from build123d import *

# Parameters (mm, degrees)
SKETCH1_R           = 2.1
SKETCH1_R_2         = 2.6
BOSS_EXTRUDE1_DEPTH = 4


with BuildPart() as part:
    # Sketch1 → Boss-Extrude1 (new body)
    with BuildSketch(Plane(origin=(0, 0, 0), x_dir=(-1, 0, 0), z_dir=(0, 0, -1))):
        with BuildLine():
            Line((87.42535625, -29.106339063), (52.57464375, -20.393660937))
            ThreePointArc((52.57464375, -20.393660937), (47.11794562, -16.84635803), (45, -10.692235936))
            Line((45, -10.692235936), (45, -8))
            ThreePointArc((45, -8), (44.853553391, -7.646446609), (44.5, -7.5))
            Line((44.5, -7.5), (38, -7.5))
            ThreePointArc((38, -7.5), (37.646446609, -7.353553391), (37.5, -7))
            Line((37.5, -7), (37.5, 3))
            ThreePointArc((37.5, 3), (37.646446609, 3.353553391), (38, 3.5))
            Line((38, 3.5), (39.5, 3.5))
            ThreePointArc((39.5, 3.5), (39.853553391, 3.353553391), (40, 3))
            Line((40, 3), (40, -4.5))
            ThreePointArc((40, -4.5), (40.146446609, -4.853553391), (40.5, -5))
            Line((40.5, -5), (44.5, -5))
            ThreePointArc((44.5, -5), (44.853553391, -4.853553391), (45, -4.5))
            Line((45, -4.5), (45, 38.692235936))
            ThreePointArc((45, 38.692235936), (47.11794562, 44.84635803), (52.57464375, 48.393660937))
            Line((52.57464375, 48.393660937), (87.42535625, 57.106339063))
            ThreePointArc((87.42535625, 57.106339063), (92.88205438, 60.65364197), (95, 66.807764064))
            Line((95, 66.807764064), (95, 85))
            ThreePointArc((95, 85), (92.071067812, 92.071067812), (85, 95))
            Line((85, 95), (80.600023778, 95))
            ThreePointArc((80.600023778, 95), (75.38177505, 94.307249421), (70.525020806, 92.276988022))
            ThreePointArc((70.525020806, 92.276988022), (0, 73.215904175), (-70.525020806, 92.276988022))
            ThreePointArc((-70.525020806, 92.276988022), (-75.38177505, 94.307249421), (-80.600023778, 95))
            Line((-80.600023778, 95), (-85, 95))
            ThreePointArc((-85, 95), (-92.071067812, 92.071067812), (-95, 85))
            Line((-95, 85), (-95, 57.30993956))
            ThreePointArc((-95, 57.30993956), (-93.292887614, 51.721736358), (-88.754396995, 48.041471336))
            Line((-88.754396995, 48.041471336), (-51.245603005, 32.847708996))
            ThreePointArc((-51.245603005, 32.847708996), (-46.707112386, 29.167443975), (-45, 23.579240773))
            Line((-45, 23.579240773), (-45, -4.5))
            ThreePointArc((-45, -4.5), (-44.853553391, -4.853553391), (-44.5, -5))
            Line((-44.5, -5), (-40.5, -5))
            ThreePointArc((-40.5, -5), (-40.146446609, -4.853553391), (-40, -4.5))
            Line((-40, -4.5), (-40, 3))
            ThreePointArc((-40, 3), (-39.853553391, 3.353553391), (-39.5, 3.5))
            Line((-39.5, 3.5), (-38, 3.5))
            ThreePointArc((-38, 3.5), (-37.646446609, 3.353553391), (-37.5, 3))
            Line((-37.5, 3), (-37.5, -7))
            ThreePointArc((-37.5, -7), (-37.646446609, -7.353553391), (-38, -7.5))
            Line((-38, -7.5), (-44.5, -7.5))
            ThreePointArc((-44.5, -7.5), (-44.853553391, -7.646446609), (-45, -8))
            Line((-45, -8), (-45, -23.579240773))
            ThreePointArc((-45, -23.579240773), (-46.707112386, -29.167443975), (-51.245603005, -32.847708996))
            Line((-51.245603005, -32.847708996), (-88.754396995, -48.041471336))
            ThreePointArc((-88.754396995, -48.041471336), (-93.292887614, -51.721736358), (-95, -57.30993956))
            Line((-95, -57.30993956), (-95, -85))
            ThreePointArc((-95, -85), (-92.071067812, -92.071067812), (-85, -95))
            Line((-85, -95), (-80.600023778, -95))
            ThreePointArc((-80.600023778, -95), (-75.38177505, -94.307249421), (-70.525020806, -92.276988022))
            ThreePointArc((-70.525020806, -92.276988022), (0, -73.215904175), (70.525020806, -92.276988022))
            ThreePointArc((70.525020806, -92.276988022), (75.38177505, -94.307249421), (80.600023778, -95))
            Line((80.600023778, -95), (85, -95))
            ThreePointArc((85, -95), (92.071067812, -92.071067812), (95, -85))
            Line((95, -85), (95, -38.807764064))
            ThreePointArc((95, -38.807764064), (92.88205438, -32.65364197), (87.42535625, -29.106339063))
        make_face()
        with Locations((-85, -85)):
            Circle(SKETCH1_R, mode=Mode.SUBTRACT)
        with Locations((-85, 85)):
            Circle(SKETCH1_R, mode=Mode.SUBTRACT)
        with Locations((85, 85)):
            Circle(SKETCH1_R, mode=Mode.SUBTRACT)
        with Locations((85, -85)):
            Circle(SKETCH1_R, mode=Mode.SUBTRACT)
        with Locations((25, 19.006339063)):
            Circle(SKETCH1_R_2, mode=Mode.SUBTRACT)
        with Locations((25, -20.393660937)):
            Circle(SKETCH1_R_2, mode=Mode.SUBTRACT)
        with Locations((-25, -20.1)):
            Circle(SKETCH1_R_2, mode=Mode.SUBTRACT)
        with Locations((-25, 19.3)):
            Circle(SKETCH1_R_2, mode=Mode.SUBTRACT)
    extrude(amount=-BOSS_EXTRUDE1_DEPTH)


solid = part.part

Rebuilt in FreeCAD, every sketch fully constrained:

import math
import FreeCAD as App
import Part
import Sketcher

V = App.Vector

doc = App.newDocument("Part")
body = doc.addObject("PartDesign::Body", "Body")

# Sketch on XY plane
sketch1 = body.newObject("Sketcher::SketchObject", "Sketch")
sketch1.AttachmentSupport = (doc.getObject("XY_Plane"), [""])
sketch1.MapMode = "FlatFace"
sketch1.addGeometry(Part.LineSegment(V(-87.43, -29.11, 0), V(-52.57, -20.39, 0)), False)
sketch1.addGeometry(Part.ArcOfCircle(Part.Circle(V(-55, -10.69, 0), V(0, 0, 1), 10), math.radians(-76), math.radians(0)), False)
sketch1.addGeometry(Part.LineSegment(V(-45, -10.69, 0), V(-45, -8, 0)), False)
sketch1.addGeometry(Part.ArcOfCircle(Part.Circle(V(-44.5, -8, 0), V(0, 0, 1), 0.5), math.radians(90), math.radians(180)), False)
sketch1.addGeometry(Part.LineSegment(V(-44.5, -7.5, 0), V(-38, -7.5, 0)), False)
sketch1.addGeometry(Part.ArcOfCircle(Part.Circle(V(-38, -7, 0), V(0, 0, 1), 0.5), math.radians(-90), math.radians(0)), False)
sketch1.addGeometry(Part.LineSegment(V(-37.5, -7, 0), V(-37.5, 3, 0)), False)
sketch1.addGeometry(Part.ArcOfCircle(Part.Circle(V(-38, 3, 0), V(0, 0, 1), 0.5), math.radians(0), math.radians(90)), False)
sketch1.addGeometry(Part.LineSegment(V(-38, 3.5, 0), V(-39.5, 3.5, 0)), False)
sketch1.addGeometry(Part.ArcOfCircle(Part.Circle(V(-39.5, 3, 0), V(0, 0, 1), 0.5), math.radians(90), math.radians(180)), False)
sketch1.addGeometry(Part.LineSegment(V(-40, 3, 0), V(-40, -4.5, 0)), False)
sketch1.addGeometry(Part.ArcOfCircle(Part.Circle(V(-40.5, -4.5, 0), V(0, 0, 1), 0.5), math.radians(-90), math.radians(0)), False)
sketch1.addGeometry(Part.LineSegment(V(-40.5, -5, 0), V(-44.5, -5, 0)), False)
sketch1.addGeometry(Part.ArcOfCircle(Part.Circle(V(-44.5, -4.5, 0), V(0, 0, 1), 0.5), math.radians(180), math.radians(270)), False)
sketch1.addGeometry(Part.LineSegment(V(-45, -4.5, 0), V(-45, 38.69, 0)), False)
sketch1.addGeometry(Part.ArcOfCircle(Part.Circle(V(-55, 38.69, 0), V(0, 0, 1), 10), math.radians(0), math.radians(76)), False)
sketch1.addGeometry(Part.LineSegment(V(-52.57, 48.39, 0), V(-87.43, 57.11, 0)), False)
sketch1.addGeometry(Part.ArcOfCircle(Part.Circle(V(-85, 66.81, 0), V(0, 0, 1), 10), math.radians(180), math.radians(256)), False)
sketch1.addGeometry(Part.LineSegment(V(-95, 66.81, 0), V(-95, 85, 0)), False)
sketch1.addGeometry(Part.ArcOfCircle(Part.Circle(V(-85, 85, 0), V(0, 0, 1), 10), math.radians(90), math.radians(180)), False)
sketch1.addGeometry(Part.LineSegment(V(-85, 95, 0), V(-80.6, 95, 0)), False)
sketch1.addGeometry(Part.ArcOfCircle(Part.Circle(V(-80.6, 75, 0), V(0, 0, 1), 20), math.radians(60), math.radians(90)), False)
sketch1.addGeometry(Part.ArcOfCircle(Part.Circle(V(0, 213.22, 0), V(0, 0, 1), 140), math.radians(-120), math.radians(-60)), False)
sketch1.addGeometry(Part.ArcOfCircle(Part.Circle(V(80.6, 75, 0), V(0, 0, 1), 20), math.radians(90), math.radians(120)), False)
sketch1.addGeometry(Part.LineSegment(V(80.6, 95, 0), V(85, 95, 0)), False)
sketch1.addGeometry(Part.ArcOfCircle(Part.Circle(V(85, 85, 0), V(0, 0, 1), 10), math.radians(0), math.radians(90)), False)
sketch1.addGeometry(Part.LineSegment(V(95, 85, 0), V(95, 57.31, 0)), False)
sketch1.addGeometry(Part.ArcOfCircle(Part.Circle(V(85, 57.31, 0), V(0, 0, 1), 10), math.radians(-68), math.radians(0)), False)
sketch1.addGeometry(Part.LineSegment(V(88.75, 48.04, 0), V(51.25, 32.85, 0)), False)
sketch1.addGeometry(Part.ArcOfCircle(Part.Circle(V(55, 23.58, 0), V(0, 0, 1), 10), math.radians(112), math.radians(180)), False)
sketch1.addGeometry(Part.LineSegment(V(45, 23.58, 0), V(45, -4.5, 0)), False)
sketch1.addGeometry(Part.ArcOfCircle(Part.Circle(V(44.5, -4.5, 0), V(0, 0, 1), 0.5), math.radians(-90), math.radians(0)), False)
sketch1.addGeometry(Part.LineSegment(V(44.5, -5, 0), V(40.5, -5, 0)), False)
sketch1.addGeometry(Part.ArcOfCircle(Part.Circle(V(40.5, -4.5, 0), V(0, 0, 1), 0.5), math.radians(180), math.radians(270)), False)
sketch1.addGeometry(Part.LineSegment(V(40, -4.5, 0), V(40, 3, 0)), False)
sketch1.addGeometry(Part.ArcOfCircle(Part.Circle(V(39.5, 3, 0), V(0, 0, 1), 0.5), math.radians(0), math.radians(90)), False)
sketch1.addGeometry(Part.LineSegment(V(39.5, 3.5, 0), V(38, 3.5, 0)), False)
sketch1.addGeometry(Part.ArcOfCircle(Part.Circle(V(38, 3, 0), V(0, 0, 1), 0.5), math.radians(90), math.radians(180)), False)
sketch1.addGeometry(Part.LineSegment(V(37.5, 3, 0), V(37.5, -7, 0)), False)
sketch1.addGeometry(Part.ArcOfCircle(Part.Circle(V(38, -7, 0), V(0, 0, 1), 0.5), math.radians(180), math.radians(270)), False)
sketch1.addGeometry(Part.LineSegment(V(38, -7.5, 0), V(44.5, -7.5, 0)), False)
sketch1.addGeometry(Part.ArcOfCircle(Part.Circle(V(44.5, -8, 0), V(0, 0, 1), 0.5), math.radians(0), math.radians(90)), False)
sketch1.addGeometry(Part.LineSegment(V(45, -8, 0), V(45, -23.58, 0)), False)
sketch1.addGeometry(Part.ArcOfCircle(Part.Circle(V(55, -23.58, 0), V(0, 0, 1), 10), math.radians(180), math.radians(248)), False)
sketch1.addGeometry(Part.LineSegment(V(51.25, -32.85, 0), V(88.75, -48.04, 0)), False)
sketch1.addGeometry(Part.ArcOfCircle(Part.Circle(V(85, -57.31, 0), V(0, 0, 1), 10), math.radians(0), math.radians(68)), False)
sketch1.addGeometry(Part.LineSegment(V(95, -57.31, 0), V(95, -85, 0)), False)
sketch1.addGeometry(Part.ArcOfCircle(Part.Circle(V(85, -85, 0), V(0, 0, 1), 10), math.radians(-90), math.radians(0)), False)
sketch1.addGeometry(Part.LineSegment(V(85, -95, 0), V(80.6, -95, 0)), False)
sketch1.addGeometry(Part.ArcOfCircle(Part.Circle(V(80.6, -75, 0), V(0, 0, 1), 20), math.radians(-120), math.radians(-90)), False)
sketch1.addGeometry(Part.ArcOfCircle(Part.Circle(V(0, -213.22, 0), V(0, 0, 1), 140), math.radians(60), math.radians(120)), False)
sketch1.addGeometry(Part.ArcOfCircle(Part.Circle(V(-80.6, -75, 0), V(0, 0, 1), 20), math.radians(-90), math.radians(-60)), False)
sketch1.addGeometry(Part.LineSegment(V(-80.6, -95, 0), V(-85, -95, 0)), False)
sketch1.addGeometry(Part.ArcOfCircle(Part.Circle(V(-85, -85, 0), V(0, 0, 1), 10), math.radians(180), math.radians(270)), False)
sketch1.addGeometry(Part.LineSegment(V(-95, -85, 0), V(-95, -38.81, 0)), False)
sketch1.addGeometry(Part.ArcOfCircle(Part.Circle(V(-85, -38.81, 0), V(0, 0, 1), 10), math.radians(104), math.radians(180)), False)
sketch1.addGeometry(Part.Circle(V(85, -85, 0), V(0, 0, 1), 2.1), False)
sketch1.addGeometry(Part.Circle(V(25, -20.1, 0), V(0, 0, 1), 2.6), False)
sketch1.addGeometry(Part.Circle(V(-85, -85, 0), V(0, 0, 1), 2.1), False)
sketch1.addGeometry(Part.Circle(V(-25, -20.39, 0), V(0, 0, 1), 2.6), False)
sketch1.addGeometry(Part.Circle(V(25, 19.3, 0), V(0, 0, 1), 2.6), False)
sketch1.addGeometry(Part.Circle(V(85, 85, 0), V(0, 0, 1), 2.1), False)
sketch1.addGeometry(Part.Circle(V(-25, 19.01, 0), V(0, 0, 1), 2.6), False)
sketch1.addGeometry(Part.Circle(V(-85, 85, 0), V(0, 0, 1), 2.1), False)
sketch1.addConstraint(Sketcher.Constraint("Tangent", 0, 2, 1, 1))
sketch1.addConstraint(Sketcher.Constraint("Tangent", 1, 2, 2, 1))
sketch1.addConstraint(Sketcher.Constraint("Tangent", 2, 2, 3, 2))
sketch1.addConstraint(Sketcher.Constraint("Tangent", 3, 1, 4, 1))
sketch1.addConstraint(Sketcher.Constraint("Tangent", 4, 2, 5, 1))
sketch1.addConstraint(Sketcher.Constraint("Tangent", 5, 2, 6, 1))
sketch1.addConstraint(Sketcher.Constraint("Tangent", 6, 2, 7, 1))
sketch1.addConstraint(Sketcher.Constraint("Tangent", 7, 2, 8, 1))
sketch1.addConstraint(Sketcher.Constraint("Tangent", 8, 2, 9, 1))
sketch1.addConstraint(Sketcher.Constraint("Tangent", 9, 2, 10, 1))
sketch1.addConstraint(Sketcher.Constraint("Tangent", 10, 2, 11, 2))
sketch1.addConstraint(Sketcher.Constraint("Tangent", 11, 1, 12, 1))
sketch1.addConstraint(Sketcher.Constraint("Tangent", 12, 2, 13, 2))
sketch1.addConstraint(Sketcher.Constraint("Tangent", 13, 1, 14, 1))
sketch1.addConstraint(Sketcher.Constraint("Tangent", 14, 2, 15, 1))
sketch1.addConstraint(Sketcher.Constraint("Tangent", 15, 2, 16, 1))
sketch1.addConstraint(Sketcher.Constraint("Tangent", 16, 2, 17, 2))
sketch1.addConstraint(Sketcher.Constraint("Tangent", 17, 1, 18, 1))
sketch1.addConstraint(Sketcher.Constraint("Tangent", 18, 2, 19, 2))
sketch1.addConstraint(Sketcher.Constraint("Tangent", 19, 1, 20, 1))
sketch1.addConstraint(Sketcher.Constraint("Tangent", 20, 2, 21, 2))
sketch1.addConstraint(Sketcher.Constraint("Tangent", 21, 1, 22, 1))
sketch1.addConstraint(Sketcher.Constraint("Tangent", 22, 2, 23, 2))
sketch1.addConstraint(Sketcher.Constraint("Tangent", 23, 1, 24, 1))
sketch1.addConstraint(Sketcher.Constraint("Tangent", 24, 2, 25, 2))
sketch1.addConstraint(Sketcher.Constraint("Tangent", 25, 1, 26, 1))
sketch1.addConstraint(Sketcher.Constraint("Tangent", 26, 2, 27, 2))
sketch1.addConstraint(Sketcher.Constraint("Tangent", 27, 1, 28, 1))
sketch1.addConstraint(Sketcher.Constraint("Tangent", 28, 2, 29, 1))
sketch1.addConstraint(Sketcher.Constraint("Tangent", 29, 2, 30, 1))
sketch1.addConstraint(Sketcher.Constraint("Tangent", 30, 2, 31, 2))
sketch1.addConstraint(Sketcher.Constraint("Tangent", 31, 1, 32, 1))
sketch1.addConstraint(Sketcher.Constraint("Tangent", 32, 2, 33, 2))
sketch1.addConstraint(Sketcher.Constraint("Tangent", 33, 1, 34, 1))
sketch1.addConstraint(Sketcher.Constraint("Tangent", 34, 2, 35, 1))
sketch1.addConstraint(Sketcher.Constraint("Tangent", 35, 2, 36, 1))
sketch1.addConstraint(Sketcher.Constraint("Tangent", 36, 2, 37, 1))
sketch1.addConstraint(Sketcher.Constraint("Tangent", 37, 2, 38, 1))
sketch1.addConstraint(Sketcher.Constraint("Tangent", 38, 2, 39, 1))
sketch1.addConstraint(Sketcher.Constraint("Tangent", 39, 2, 40, 1))
sketch1.addConstraint(Sketcher.Constraint("Tangent", 40, 2, 41, 2))
sketch1.addConstraint(Sketcher.Constraint("Tangent", 41, 1, 42, 1))
sketch1.addConstraint(Sketcher.Constraint("Tangent", 42, 2, 43, 1))
sketch1.addConstraint(Sketcher.Constraint("Tangent", 43, 2, 44, 1))
sketch1.addConstraint(Sketcher.Constraint("Tangent", 44, 2, 45, 2))
sketch1.addConstraint(Sketcher.Constraint("Tangent", 45, 1, 46, 1))
sketch1.addConstraint(Sketcher.Constraint("Tangent", 46, 2, 47, 2))
sketch1.addConstraint(Sketcher.Constraint("Tangent", 47, 1, 48, 1))
sketch1.addConstraint(Sketcher.Constraint("Tangent", 48, 2, 49, 2))
sketch1.addConstraint(Sketcher.Constraint("Tangent", 49, 1, 50, 1))
sketch1.addConstraint(Sketcher.Constraint("Tangent", 50, 2, 51, 2))
sketch1.addConstraint(Sketcher.Constraint("Tangent", 51, 1, 52, 1))
sketch1.addConstraint(Sketcher.Constraint("Tangent", 52, 2, 53, 2))
sketch1.addConstraint(Sketcher.Constraint("Tangent", 53, 1, 54, 1))
sketch1.addConstraint(Sketcher.Constraint("Tangent", 54, 2, 55, 2))
sketch1.addConstraint(Sketcher.Constraint("Tangent", 55, 1, 0, 1))
sketch1.addConstraint(Sketcher.Constraint("Vertical", 2))
sketch1.addConstraint(Sketcher.Constraint("Horizontal", 4))
sketch1.addConstraint(Sketcher.Constraint("Vertical", 6))
sketch1.addConstraint(Sketcher.Constraint("Horizontal", 8))
sketch1.addConstraint(Sketcher.Constraint("Vertical", 10))
sketch1.addConstraint(Sketcher.Constraint("Horizontal", 12))
sketch1.addConstraint(Sketcher.Constraint("Vertical", 14))
sketch1.addConstraint(Sketcher.Constraint("Vertical", 18))
sketch1.addConstraint(Sketcher.Constraint("Horizontal", 20))
sketch1.addConstraint(Sketcher.Constraint("Horizontal", 24))
sketch1.addConstraint(Sketcher.Constraint("Vertical", 26))
sketch1.addConstraint(Sketcher.Constraint("Vertical", 30))
sketch1.addConstraint(Sketcher.Constraint("Horizontal", 32))
sketch1.addConstraint(Sketcher.Constraint("Vertical", 34))
sketch1.addConstraint(Sketcher.Constraint("Horizontal", 36))
sketch1.addConstraint(Sketcher.Constraint("Vertical", 38))
sketch1.addConstraint(Sketcher.Constraint("Horizontal", 40))
sketch1.addConstraint(Sketcher.Constraint("Vertical", 42))
sketch1.addConstraint(Sketcher.Constraint("Vertical", 46))
sketch1.addConstraint(Sketcher.Constraint("Horizontal", 48))
sketch1.addConstraint(Sketcher.Constraint("Horizontal", 52))
sketch1.addConstraint(Sketcher.Constraint("Vertical", 54))
sketch1.addConstraint(Sketcher.Constraint("Coincident", 56, 3, 47, 3))
sketch1.addConstraint(Sketcher.Constraint("Coincident", 58, 3, 53, 3))
sketch1.addConstraint(Sketcher.Constraint("Coincident", 61, 3, 25, 3))
sketch1.addConstraint(Sketcher.Constraint("Coincident", 63, 3, 19, 3))
sketch1.addConstraint(Sketcher.Constraint("Equal", 3, 5))
sketch1.addConstraint(Sketcher.Constraint("Equal", 5, 7))
sketch1.addConstraint(Sketcher.Constraint("Equal", 7, 9))
sketch1.addConstraint(Sketcher.Constraint("Equal", 9, 11))
sketch1.addConstraint(Sketcher.Constraint("Equal", 11, 13))
sketch1.addConstraint(Sketcher.Constraint("Equal", 1, 15))
sketch1.addConstraint(Sketcher.Constraint("Equal", 15, 17))
sketch1.addConstraint(Sketcher.Constraint("Equal", 17, 19))
sketch1.addConstraint(Sketcher.Constraint("Equal", 21, 23))
sketch1.addConstraint(Sketcher.Constraint("Equal", 19, 25))
sketch1.addConstraint(Sketcher.Constraint("Equal", 25, 27))
sketch1.addConstraint(Sketcher.Constraint("Equal", 27, 29))
sketch1.addConstraint(Sketcher.Constraint("Equal", 13, 31))
sketch1.addConstraint(Sketcher.Constraint("Equal", 31, 33))
sketch1.addConstraint(Sketcher.Constraint("Equal", 33, 35))
sketch1.addConstraint(Sketcher.Constraint("Equal", 35, 37))
sketch1.addConstraint(Sketcher.Constraint("Equal", 37, 39))
sketch1.addConstraint(Sketcher.Constraint("Equal", 39, 41))
sketch1.addConstraint(Sketcher.Constraint("Equal", 29, 43))
sketch1.addConstraint(Sketcher.Constraint("Equal", 43, 45))
sketch1.addConstraint(Sketcher.Constraint("Equal", 45, 47))
sketch1.addConstraint(Sketcher.Constraint("Equal", 23, 49))
sketch1.addConstraint(Sketcher.Constraint("Equal", 22, 50))
sketch1.addConstraint(Sketcher.Constraint("Equal", 49, 51))
sketch1.addConstraint(Sketcher.Constraint("Equal", 47, 53))
sketch1.addConstraint(Sketcher.Constraint("Equal", 53, 55))
sketch1.addConstraint(Sketcher.Constraint("Equal", 56, 58))
sketch1.addConstraint(Sketcher.Constraint("Equal", 57, 59))
sketch1.addConstraint(Sketcher.Constraint("Equal", 59, 60))
sketch1.addConstraint(Sketcher.Constraint("Equal", 58, 61))
sketch1.addConstraint(Sketcher.Constraint("Equal", 60, 62))
sketch1.addConstraint(Sketcher.Constraint("Equal", 61, 63))
sketch1.addConstraint(Sketcher.Constraint("Symmetric", 19, 3, 47, 3, -1, 1))
sketch1.addConstraint(Sketcher.Constraint("Symmetric", 22, 3, 50, 3, -1, 1))
sketch1.addConstraint(Sketcher.Constraint("Symmetric", 25, 3, 53, 3, -1, 1))
sketch1.addConstraint(Sketcher.Constraint("Symmetric", 21, 3, 23, 3, -2))
sketch1.addConstraint(Sketcher.Constraint("Symmetric", 13, 3, 31, 3, -2))
sketch1.addConstraint(Sketcher.Constraint("Symmetric", 9, 3, 35, 3, -2))
sketch1.addConstraint(Sketcher.Constraint("Symmetric", 5, 3, 39, 3, -2))
sketch1.addConstraint(Sketcher.Constraint("Symmetric", 29, 3, 43, 3, -1))
sketch1.addConstraint(Sketcher.Constraint("Symmetric", 27, 3, 45, 3, -1))
sketch1.addConstraint(Sketcher.Constraint("Horizontal", 59, 3, 0, 2))
sketch1.addConstraint(Sketcher.Constraint("Vertical", 3, 3, 13, 3))
sketch1.addConstraint(Sketcher.Constraint("Vertical", 57, 3, 60, 3))
sketch1.addConstraint(Sketcher.Constraint("Vertical", 59, 3, 62, 3))
sketch1.addConstraint(Sketcher.Constraint("Vertical", 0, 2, 15, 2))
sketch1.addConstraint(Sketcher.Constraint("Radius", 1, 10.0))
sketch1.addConstraint(Sketcher.Constraint("Radius", 21, 20.0))
sketch1.addConstraint(Sketcher.Constraint("Radius", 22, 140.0))
sketch1.addConstraint(Sketcher.Constraint("Diameter", 56, 4.2))
sketch1.addConstraint(Sketcher.Constraint("Diameter", 57, 5.2))
sketch1.addConstraint(Sketcher.Constraint("Radius", 3, 0.5))
sketch1.addConstraint(Sketcher.Constraint("DistanceX", 12, 2, 12, 1, 4.0))
sketch1.addConstraint(Sketcher.Constraint("DistanceY", 6, 1, 6, 2, 10.0))
sketch1.addConstraint(Sketcher.Constraint("DistanceX", 4, 1, 4, 2, 6.5))
sketch1.addConstraint(Sketcher.Constraint("DistanceY", 10, 2, 10, 1, 7.5))
sketch1.addConstraint(Sketcher.Constraint("DistanceX", 1, 3, -1, 1, 55.0))
sketch1.addConstraint(Sketcher.Constraint("DistanceY", 3, 3, -1, 1, 8.0))
sketch1.addConstraint(Sketcher.Constraint("DistanceX", 17, 3, -1, 1, 85.0))
sketch1.addConstraint(Sketcher.Constraint("DistanceY", -1, 1, 19, 3, 85.0))
sketch1.addConstraint(Sketcher.Constraint("DistanceX", -1, 1, 57, 3, 25.0))
sketch1.addConstraint(Sketcher.Constraint("DistanceX", 59, 3, -1, 1, 25.0))
sketch1.addConstraint(Sketcher.Constraint("DistanceY", 57, 3, -1, 1, 20.1))
sketch1.addConstraint(Sketcher.Constraint("DistanceY", -1, 1, 60, 3, 19.3))
sketch1.addConstraint(Sketcher.Constraint("DistanceY", 26, 2, 26, 1, 27.69006))
sketch1.addConstraint(Sketcher.Constraint("DistanceY", 30, 2, 30, 1, 28.079241))
sketch1.addConstraint(Sketcher.Constraint("DistanceX", 20, 1, 20, 2, 4.399976))
sketch1.addConstraint(Sketcher.Constraint("DistanceY", 2, 1, 2, 2, 2.692236))
sketch1.addConstraint(Sketcher.Constraint("DistanceY", 14, 1, 14, 2, 43.192236))
sketch1.addConstraint(Sketcher.Constraint("DistanceY", 18, 1, 18, 2, 18.192236))
sketch1.addConstraint(Sketcher.Constraint("DistanceY", -1, 1, 62, 3, 19.006339))
pad1 = body.newObject("PartDesign::Pad", "Pad")
pad1.Profile = sketch1
pad1.Length = 4

doc.recompute()
